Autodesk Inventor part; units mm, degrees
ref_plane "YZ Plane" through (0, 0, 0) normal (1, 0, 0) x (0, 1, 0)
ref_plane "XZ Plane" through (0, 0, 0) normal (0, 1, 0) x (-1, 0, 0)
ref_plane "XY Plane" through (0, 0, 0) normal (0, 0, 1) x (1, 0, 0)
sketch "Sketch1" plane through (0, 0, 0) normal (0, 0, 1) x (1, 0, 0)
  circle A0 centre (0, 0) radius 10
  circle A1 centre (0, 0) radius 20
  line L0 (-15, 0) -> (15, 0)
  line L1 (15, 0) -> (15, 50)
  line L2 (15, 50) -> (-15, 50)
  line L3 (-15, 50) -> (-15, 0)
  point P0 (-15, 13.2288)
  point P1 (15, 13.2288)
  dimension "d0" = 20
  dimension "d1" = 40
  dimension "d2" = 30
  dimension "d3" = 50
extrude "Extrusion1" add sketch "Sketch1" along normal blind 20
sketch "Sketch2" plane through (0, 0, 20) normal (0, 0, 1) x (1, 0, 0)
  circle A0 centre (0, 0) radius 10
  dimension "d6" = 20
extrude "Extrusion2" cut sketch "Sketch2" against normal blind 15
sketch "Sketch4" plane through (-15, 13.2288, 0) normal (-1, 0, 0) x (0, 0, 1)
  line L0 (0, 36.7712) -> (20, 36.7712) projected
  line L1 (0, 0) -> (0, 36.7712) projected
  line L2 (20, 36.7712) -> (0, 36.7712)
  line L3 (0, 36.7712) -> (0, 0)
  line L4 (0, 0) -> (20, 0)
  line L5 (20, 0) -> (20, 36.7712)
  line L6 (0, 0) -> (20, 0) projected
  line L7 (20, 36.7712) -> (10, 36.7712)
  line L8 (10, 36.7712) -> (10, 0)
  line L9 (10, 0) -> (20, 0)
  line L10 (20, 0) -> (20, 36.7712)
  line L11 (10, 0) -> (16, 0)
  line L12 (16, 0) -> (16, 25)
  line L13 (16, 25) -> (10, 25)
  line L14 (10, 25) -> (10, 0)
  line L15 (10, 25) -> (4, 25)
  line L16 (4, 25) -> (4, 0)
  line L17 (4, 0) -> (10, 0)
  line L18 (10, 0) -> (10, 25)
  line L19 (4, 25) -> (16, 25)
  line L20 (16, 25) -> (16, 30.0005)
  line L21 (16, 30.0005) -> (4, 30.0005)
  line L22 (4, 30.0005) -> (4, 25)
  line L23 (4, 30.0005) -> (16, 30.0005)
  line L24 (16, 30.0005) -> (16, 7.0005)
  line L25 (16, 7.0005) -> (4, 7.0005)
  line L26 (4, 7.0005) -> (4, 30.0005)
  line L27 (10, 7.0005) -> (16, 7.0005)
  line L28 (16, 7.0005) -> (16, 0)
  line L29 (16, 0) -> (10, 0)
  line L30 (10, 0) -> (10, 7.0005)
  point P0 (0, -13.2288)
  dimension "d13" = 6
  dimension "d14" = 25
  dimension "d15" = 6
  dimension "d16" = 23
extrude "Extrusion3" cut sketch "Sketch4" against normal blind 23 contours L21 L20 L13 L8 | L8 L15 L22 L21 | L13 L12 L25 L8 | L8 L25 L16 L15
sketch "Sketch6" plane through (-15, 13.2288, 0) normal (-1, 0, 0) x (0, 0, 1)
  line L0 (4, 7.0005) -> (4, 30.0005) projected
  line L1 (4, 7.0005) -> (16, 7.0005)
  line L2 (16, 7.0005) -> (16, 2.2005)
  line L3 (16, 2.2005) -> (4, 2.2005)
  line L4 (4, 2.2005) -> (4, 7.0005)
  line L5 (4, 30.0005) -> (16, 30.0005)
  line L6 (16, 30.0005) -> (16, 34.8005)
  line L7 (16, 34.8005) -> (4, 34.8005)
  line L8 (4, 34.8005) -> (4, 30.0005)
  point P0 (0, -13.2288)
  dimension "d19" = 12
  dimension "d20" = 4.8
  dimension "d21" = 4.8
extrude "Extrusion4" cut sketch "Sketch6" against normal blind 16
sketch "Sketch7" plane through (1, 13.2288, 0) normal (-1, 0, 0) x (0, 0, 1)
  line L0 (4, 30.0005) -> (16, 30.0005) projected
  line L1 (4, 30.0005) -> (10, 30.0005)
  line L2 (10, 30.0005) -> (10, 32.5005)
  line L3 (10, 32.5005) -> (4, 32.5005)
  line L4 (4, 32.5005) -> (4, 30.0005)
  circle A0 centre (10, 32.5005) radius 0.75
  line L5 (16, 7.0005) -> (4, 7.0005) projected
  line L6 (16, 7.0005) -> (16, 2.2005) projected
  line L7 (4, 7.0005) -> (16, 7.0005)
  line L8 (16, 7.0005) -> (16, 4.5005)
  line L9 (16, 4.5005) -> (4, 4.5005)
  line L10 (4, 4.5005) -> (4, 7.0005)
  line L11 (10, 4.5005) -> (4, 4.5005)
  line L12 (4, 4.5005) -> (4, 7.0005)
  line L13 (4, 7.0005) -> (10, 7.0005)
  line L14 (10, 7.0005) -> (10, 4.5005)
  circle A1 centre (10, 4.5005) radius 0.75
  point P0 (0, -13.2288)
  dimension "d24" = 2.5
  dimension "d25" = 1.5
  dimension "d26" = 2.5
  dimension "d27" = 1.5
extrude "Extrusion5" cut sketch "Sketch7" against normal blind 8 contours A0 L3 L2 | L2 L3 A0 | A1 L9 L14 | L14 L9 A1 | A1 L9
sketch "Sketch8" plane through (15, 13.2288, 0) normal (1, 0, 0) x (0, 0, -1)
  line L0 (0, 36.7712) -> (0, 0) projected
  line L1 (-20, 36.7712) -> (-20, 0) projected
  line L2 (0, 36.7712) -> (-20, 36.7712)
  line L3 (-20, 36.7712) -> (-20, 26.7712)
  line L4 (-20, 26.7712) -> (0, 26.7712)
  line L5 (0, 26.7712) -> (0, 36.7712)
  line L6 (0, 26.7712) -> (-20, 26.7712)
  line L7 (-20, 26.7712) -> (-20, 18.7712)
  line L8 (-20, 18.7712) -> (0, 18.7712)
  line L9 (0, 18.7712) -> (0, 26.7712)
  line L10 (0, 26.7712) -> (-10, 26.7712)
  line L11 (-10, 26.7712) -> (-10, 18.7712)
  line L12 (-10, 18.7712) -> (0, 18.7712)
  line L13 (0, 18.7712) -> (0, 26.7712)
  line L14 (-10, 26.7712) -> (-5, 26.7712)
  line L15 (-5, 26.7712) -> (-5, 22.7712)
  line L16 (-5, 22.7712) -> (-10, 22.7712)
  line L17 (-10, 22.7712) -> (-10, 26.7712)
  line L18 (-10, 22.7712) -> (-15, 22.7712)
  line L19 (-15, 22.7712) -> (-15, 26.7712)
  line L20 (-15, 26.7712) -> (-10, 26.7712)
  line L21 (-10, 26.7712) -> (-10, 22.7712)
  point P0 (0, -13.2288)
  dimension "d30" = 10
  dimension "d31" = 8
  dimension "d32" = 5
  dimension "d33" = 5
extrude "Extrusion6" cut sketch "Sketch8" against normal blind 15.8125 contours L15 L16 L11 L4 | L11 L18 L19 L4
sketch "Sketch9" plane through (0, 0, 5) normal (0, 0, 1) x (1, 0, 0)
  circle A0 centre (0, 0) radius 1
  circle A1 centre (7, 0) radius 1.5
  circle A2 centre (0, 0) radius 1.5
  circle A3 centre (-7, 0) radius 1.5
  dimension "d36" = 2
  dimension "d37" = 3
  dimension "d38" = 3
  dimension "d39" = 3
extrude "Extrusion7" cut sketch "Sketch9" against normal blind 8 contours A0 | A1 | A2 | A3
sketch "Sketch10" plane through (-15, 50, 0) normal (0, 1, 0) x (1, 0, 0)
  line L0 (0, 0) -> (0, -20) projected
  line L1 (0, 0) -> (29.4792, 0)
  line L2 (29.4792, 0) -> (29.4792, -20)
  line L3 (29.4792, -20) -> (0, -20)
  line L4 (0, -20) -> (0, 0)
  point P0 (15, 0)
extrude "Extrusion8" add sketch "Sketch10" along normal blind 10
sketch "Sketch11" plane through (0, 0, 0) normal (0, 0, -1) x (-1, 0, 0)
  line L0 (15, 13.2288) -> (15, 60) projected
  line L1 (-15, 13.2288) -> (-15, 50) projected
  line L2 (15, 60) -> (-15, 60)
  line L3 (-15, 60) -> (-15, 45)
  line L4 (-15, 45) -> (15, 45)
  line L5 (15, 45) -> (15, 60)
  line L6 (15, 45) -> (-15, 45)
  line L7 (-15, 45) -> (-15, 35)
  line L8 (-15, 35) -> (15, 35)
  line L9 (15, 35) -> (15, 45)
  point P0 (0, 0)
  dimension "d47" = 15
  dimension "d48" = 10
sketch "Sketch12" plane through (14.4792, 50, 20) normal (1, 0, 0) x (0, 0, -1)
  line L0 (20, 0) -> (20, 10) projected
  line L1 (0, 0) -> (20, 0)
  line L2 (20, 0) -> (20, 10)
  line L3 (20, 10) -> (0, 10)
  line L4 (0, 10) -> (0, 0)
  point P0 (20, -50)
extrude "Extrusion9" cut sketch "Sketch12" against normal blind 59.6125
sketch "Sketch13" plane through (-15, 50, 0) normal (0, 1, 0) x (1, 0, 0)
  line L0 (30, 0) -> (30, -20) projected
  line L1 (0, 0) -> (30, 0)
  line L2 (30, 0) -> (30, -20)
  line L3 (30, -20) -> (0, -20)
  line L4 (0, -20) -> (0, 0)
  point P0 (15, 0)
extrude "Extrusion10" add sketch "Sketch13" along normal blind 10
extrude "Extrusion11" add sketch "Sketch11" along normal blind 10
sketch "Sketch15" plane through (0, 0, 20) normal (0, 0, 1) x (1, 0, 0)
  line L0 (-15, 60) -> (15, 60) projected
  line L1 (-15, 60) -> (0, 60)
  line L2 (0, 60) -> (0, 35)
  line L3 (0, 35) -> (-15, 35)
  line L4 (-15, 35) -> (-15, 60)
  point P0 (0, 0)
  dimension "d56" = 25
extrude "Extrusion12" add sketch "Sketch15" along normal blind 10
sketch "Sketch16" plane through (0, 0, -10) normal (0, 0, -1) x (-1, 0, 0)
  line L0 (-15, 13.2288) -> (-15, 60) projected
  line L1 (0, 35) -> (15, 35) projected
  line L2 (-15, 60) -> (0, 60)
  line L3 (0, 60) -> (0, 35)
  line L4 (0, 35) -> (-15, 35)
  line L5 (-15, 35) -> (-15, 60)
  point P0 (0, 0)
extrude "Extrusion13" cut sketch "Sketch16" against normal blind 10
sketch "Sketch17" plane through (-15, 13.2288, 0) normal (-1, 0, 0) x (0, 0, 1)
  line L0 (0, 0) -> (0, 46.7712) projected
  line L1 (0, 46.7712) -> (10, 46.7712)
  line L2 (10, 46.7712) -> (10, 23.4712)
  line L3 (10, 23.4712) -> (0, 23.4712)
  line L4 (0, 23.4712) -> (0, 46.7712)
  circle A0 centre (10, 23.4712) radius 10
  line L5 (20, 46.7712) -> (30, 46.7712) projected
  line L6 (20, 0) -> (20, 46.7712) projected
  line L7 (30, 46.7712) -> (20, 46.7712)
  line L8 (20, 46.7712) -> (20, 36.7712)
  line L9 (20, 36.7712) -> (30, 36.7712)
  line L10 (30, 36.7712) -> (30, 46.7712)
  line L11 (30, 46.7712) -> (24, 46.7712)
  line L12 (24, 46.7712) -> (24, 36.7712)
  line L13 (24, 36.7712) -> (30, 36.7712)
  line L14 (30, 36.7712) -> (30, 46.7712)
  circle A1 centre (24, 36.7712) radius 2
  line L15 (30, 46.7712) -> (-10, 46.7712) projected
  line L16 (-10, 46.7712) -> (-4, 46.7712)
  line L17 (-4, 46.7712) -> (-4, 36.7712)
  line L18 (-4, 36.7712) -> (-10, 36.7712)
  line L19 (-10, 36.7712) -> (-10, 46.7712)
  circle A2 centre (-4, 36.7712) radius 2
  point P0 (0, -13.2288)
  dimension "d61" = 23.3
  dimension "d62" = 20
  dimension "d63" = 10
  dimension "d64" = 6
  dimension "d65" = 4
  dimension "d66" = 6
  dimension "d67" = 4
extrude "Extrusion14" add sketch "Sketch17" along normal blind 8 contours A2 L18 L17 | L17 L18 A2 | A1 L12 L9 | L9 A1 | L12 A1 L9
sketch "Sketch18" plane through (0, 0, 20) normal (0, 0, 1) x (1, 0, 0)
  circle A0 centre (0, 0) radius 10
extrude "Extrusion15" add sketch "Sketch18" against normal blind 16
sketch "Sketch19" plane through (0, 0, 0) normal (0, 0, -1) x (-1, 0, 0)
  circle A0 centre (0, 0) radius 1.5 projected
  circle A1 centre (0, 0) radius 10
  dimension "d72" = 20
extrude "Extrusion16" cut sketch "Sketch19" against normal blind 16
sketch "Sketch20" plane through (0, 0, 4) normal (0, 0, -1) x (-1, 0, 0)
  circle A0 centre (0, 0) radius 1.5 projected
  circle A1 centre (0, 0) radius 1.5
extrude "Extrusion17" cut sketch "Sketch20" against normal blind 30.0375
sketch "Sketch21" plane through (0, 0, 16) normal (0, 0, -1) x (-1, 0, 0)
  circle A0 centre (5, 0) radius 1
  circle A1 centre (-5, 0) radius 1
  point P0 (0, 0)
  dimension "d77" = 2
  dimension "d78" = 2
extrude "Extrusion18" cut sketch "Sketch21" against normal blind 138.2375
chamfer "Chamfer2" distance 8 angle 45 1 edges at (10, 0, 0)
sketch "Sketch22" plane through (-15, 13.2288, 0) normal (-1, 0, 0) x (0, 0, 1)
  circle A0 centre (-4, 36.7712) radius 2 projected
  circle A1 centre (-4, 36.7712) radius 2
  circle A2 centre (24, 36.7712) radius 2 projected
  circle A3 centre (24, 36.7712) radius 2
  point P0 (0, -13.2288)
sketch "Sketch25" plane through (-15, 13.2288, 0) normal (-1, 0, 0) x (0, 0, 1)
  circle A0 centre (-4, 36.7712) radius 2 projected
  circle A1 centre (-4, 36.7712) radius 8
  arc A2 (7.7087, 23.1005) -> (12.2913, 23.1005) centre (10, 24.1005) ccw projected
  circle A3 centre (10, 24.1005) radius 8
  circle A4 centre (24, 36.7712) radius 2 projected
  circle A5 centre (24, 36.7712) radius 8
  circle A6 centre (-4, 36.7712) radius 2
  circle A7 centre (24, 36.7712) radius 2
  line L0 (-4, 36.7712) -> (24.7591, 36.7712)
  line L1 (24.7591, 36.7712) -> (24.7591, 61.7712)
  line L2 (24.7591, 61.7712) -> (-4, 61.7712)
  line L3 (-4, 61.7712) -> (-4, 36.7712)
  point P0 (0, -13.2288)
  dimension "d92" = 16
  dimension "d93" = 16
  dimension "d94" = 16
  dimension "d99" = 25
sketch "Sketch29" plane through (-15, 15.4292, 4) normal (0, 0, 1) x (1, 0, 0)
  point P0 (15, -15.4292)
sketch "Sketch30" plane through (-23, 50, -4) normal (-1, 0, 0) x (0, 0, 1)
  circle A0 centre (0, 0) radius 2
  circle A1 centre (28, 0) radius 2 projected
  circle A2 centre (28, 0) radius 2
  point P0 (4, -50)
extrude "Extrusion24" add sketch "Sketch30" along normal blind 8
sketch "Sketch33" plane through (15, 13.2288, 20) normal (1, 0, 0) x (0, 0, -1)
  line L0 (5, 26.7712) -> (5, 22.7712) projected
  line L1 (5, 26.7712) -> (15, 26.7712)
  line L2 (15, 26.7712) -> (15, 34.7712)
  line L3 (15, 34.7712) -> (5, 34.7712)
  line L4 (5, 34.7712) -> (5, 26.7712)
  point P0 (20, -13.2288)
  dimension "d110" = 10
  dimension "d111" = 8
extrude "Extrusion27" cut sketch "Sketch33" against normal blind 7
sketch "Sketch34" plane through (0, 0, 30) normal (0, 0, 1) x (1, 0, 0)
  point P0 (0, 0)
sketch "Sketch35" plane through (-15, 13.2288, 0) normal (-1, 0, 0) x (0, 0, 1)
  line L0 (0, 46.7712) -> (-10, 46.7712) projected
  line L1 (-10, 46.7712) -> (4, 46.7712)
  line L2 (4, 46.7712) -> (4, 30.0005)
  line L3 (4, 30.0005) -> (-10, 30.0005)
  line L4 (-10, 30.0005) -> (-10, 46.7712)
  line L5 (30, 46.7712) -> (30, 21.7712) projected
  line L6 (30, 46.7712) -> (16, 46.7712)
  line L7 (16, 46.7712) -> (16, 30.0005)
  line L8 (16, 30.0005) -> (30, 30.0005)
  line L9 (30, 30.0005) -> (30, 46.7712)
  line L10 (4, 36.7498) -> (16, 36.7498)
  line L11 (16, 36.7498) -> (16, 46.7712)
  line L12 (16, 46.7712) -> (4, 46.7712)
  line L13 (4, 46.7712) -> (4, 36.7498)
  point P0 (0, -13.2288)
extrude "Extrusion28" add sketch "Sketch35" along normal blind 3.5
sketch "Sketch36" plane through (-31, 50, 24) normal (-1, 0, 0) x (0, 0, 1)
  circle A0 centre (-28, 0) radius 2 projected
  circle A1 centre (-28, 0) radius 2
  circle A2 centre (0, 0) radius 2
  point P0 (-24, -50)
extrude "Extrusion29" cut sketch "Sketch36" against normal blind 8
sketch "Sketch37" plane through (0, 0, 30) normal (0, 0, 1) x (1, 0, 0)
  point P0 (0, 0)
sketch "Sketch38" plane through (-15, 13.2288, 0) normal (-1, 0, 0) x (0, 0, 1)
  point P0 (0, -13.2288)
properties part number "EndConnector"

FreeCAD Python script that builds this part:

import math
import FreeCAD as App
import Part
import Sketcher
Q = App.Units.Quantity


def edges_at(feature, points):
    """Names of the edges that pass closest to the given points."""
    edges = feature.Shape.Edges
    near = lambda p: min(range(len(edges)), key=lambda i: edges[i].distToShape(Part.Vertex(*p))[0])
    return sorted({f"Edge{near(p) + 1}" for p in points})

doc = App.newDocument("Part")
params = doc.addObject("Spreadsheet::Sheet", "Params")
for row, (alias, value) in enumerate([
    ("sketch1_radius", "20 mm"),
    ("sketch1_width", "30 mm"),
    ("pad1_length", "20 mm"),
    ("sketch2_diameter", "20 mm"),
    ("pocket1_length", "15 mm"),
    ("sketch3_width", "23 mm"),
    ("sketch3_height", "12 mm"),
    ("pocket2_length", "23 mm"),
    ("sketch4_height", "12 mm"),
    ("sketch4_width", "4.8 mm"),
    ("pocket3_length", "16 mm"),
    ("sketch5_diameter", "1.5 mm"),
    ("pocket4_length", "8 mm"),
    ("sketch6_height", "10 mm"),
    ("sketch6_width", "4 mm"),
    ("pocket5_length", "15.8125 mm"),
    ("sketch7_diameter", "3 mm"),
    ("pocket6_length", "8 mm"),
    ("sketch8_height", "20 mm"),
    ("pad2_length", "10 mm"),
    ("sketch9_width", "10 mm"),
    ("sketch9_height", "20 mm"),
    ("pocket7_length", "59.6125 mm"),
    ("sketch10_width", "30 mm"),
    ("sketch10_height", "20 mm"),
    ("pad3_length", "10 mm"),
    ("sketch11_height", "25 mm"),
    ("pad4_length", "10 mm"),
    ("sketch12_height", "25 mm"),
    ("sketch12_width", "15 mm"),
    ("pad5_length", "10 mm"),
    ("sketch13_width", "15 mm"),
    ("sketch13_height", "25 mm"),
    ("pocket8_length", "10 mm"),
    ("sketch14_diameter", "4 mm"),
    ("pad6_length", "8 mm"),
    ("sketch15_diameter", "20 mm"),
    ("pad7_length", "16 mm"),
    ("sketch16_diameter", "20 mm"),
    ("sketch16_diameter2", "3 mm"),
    ("pocket9_length", "16 mm"),
    ("sketch17_diameter", "3 mm"),
    ("pocket10_length", "30.0375 mm"),
    ("sketch18_diameter", "2 mm"),
    ("pocket11_length", "138.2375 mm"),
    ("chamfer_size", "8 mm"),
    ("sketch19_diameter", "4 mm"),
    ("pad8_length", "8 mm"),
    ("sketch20_width", "8 mm"),
    ("sketch20_height", "10 mm"),
    ("pocket12_length", "7 mm"),
    ("sketch21_height", "14 mm"),
    ("sketch21_height2", "12 mm"),
    ("pad9_length", "3.5 mm"),
    ("sketch22_diameter", "4 mm"),
    ("pocket13_length", "8 mm"),
], start=1):
    params.set(f"A{row}", alias)
    params.set(f"B{row}", "=" + value)
    params.setAlias(f"B{row}", alias)

body = doc.addObject("PartDesign::Body", "Body")

# Sketch on XY plane
sketch1 = body.newObject("Sketcher::SketchObject", "Sketch")
sketch1.AttachmentSupport = (doc.getObject("XY_Plane"), [""])
sketch1.MapMode = "FlatFace"
sketch1.addGeometry(Part.ArcOfCircle(Part.Circle(App.Vector(0, 0, 0), App.Vector(0, 0, 1), 20), math.radians(139), math.radians(401)), False)
sketch1.addGeometry(Part.LineSegment(App.Vector(15, 13, 0), App.Vector(15, 50, 0)), False)
sketch1.addGeometry(Part.LineSegment(App.Vector(15, 50, 0), App.Vector(-15, 50, 0)), False)
sketch1.addGeometry(Part.LineSegment(App.Vector(-15, 50, 0), App.Vector(-15, 13, 0)), False)
sketch1.addConstraint(Sketcher.Constraint("Coincident", 0, 2, 1, 1))
sketch1.addConstraint(Sketcher.Constraint("Coincident", 1, 2, 2, 1))
sketch1.addConstraint(Sketcher.Constraint("Coincident", 2, 2, 3, 1))
sketch1.addConstraint(Sketcher.Constraint("Coincident", 3, 2, 0, 1))
sketch1.addConstraint(Sketcher.Constraint("Vertical", 1))
sketch1.addConstraint(Sketcher.Constraint("Horizontal", 2))
sketch1.addConstraint(Sketcher.Constraint("Vertical", 3))
sketch1.addConstraint(Sketcher.Constraint("Coincident", 0, 3, -1, 1))
sketch1.addConstraint(Sketcher.Constraint("Horizontal", 0, 2, 3, 2))
sketch1.addConstraint(Sketcher.Constraint("Radius", 0, Q("20 mm")))
sketch1.addConstraint(Sketcher.Constraint("DistanceX", 2, 2, 2, 1, Q("30 mm")))
sketch1.addConstraint(Sketcher.Constraint("DistanceY", -1, 1, 1, 2, Q("50 mm")))
sketch1.setExpression("Constraints[9]", "Params.sketch1_radius")
sketch1.setExpression("Constraints[10]", "Params.sketch1_width")
pad1 = body.newObject("PartDesign::Pad", "Pad")
pad1.Profile = sketch1
pad1.setExpression("Length", "Params.pad1_length")

# Sketch on XY plane
sketch2 = body.newObject("Sketcher::SketchObject", "Sketch001")
sketch2.AttachmentSupport = (doc.getObject("XY_Plane"), [""])
sketch2.MapMode = "FlatFace"
sketch2.AttachmentOffset = App.Placement(App.Vector(0, 0, 20), App.Rotation())
sketch2.addGeometry(Part.Circle(App.Vector(0, 0, 0), App.Vector(0, 0, 1), 10), False)
sketch2.addConstraint(Sketcher.Constraint("Coincident", 0, 3, -1, 1))
sketch2.addConstraint(Sketcher.Constraint("Diameter", 0, Q("20 mm")))
sketch2.setExpression("Constraints[1]", "Params.sketch2_diameter")
pocket1 = body.newObject("PartDesign::Pocket", "Pocket")
pocket1.Profile = sketch2
pocket1.setExpression("Length", "Params.pocket1_length")

# Sketch on YZ plane
sketch3 = body.newObject("Sketcher::SketchObject", "Sketch002")
sketch3.AttachmentSupport = (doc.getObject("YZ_Plane"), [""])
sketch3.MapMode = "FlatFace"
sketch3.AttachmentOffset = App.Placement(App.Vector(0, 0, -15), App.Rotation())
sketch3.addGeometry(Part.LineSegment(App.Vector(43, 16, 0), App.Vector(43, 4, 0)), False)
sketch3.addGeometry(Part.LineSegment(App.Vector(43, 4, 0), App.Vector(20, 4, 0)), False)
sketch3.addGeometry(Part.LineSegment(App.Vector(20, 4, 0), App.Vector(20, 16, 0)), False)
sketch3.addGeometry(Part.LineSegment(App.Vector(20, 16, 0), App.Vector(43, 16, 0)), False)
sketch3.addConstraint(Sketcher.Constraint("Coincident", 0, 2, 1, 1))
sketch3.addConstraint(Sketcher.Constraint("Coincident", 1, 2, 2, 1))
sketch3.addConstraint(Sketcher.Constraint("Coincident", 2, 2, 3, 1))
sketch3.addConstraint(Sketcher.Constraint("Coincident", 3, 2, 0, 1))
sketch3.addConstraint(Sketcher.Constraint("Vertical", 0))
sketch3.addConstraint(Sketcher.Constraint("Horizontal", 1))
sketch3.addConstraint(Sketcher.Constraint("Vertical", 2))
sketch3.addConstraint(Sketcher.Constraint("Horizontal", 3))
sketch3.addConstraint(Sketcher.Constraint("DistanceX", 1, 2, 1, 1, Q("23 mm")))
sketch3.addConstraint(Sketcher.Constraint("DistanceY", 0, 2, 0, 1, Q("12 mm")))
sketch3.addConstraint(Sketcher.Constraint("DistanceY", -1, 1, 0, 2, Q("4 mm")))
sketch3.addConstraint(Sketcher.Constraint("DistanceX", -1, 1, 0, 2, Q("43.2293 mm")))
sketch3.setExpression("Constraints[8]", "Params.sketch3_width")
sketch3.setExpression("Constraints[9]", "Params.sketch3_height")
pocket2 = body.newObject("PartDesign::Pocket", "Pocket001")
pocket2.Profile = sketch3
pocket2.setExpression("Length", "Params.pocket2_length")
pocket2.Reversed = True

# Sketch on YZ plane
sketch4 = body.newObject("Sketcher::SketchObject", "Sketch003")
sketch4.AttachmentSupport = (doc.getObject("YZ_Plane"), [""])
sketch4.MapMode = "FlatFace"
sketch4.AttachmentOffset = App.Placement(App.Vector(0, 0, -15), App.Rotation())
sketch4.addGeometry(Part.LineSegment(App.Vector(48, 4, 0), App.Vector(43.2, 4, 0)), False)
sketch4.addGeometry(Part.LineSegment(App.Vector(43.2, 4, 0), App.Vector(43.2, 16, 0)), False)
sketch4.addGeometry(Part.LineSegment(App.Vector(43.2, 16, 0), App.Vector(48, 16, 0)), False)
sketch4.addGeometry(Part.LineSegment(App.Vector(48, 16, 0), App.Vector(48, 4, 0)), False)
sketch4.addGeometry(Part.LineSegment(App.Vector(20.2, 16, 0), App.Vector(20.2, 4, 0)), False)
sketch4.addGeometry(Part.LineSegment(App.Vector(20.2, 4, 0), App.Vector(15.4, 4, 0)), False)
sketch4.addGeometry(Part.LineSegment(App.Vector(15.4, 4, 0), App.Vector(15.4, 16, 0)), False)
sketch4.addGeometry(Part.LineSegment(App.Vector(15.4, 16, 0), App.Vector(20.2, 16, 0)), False)
sketch4.addConstraint(Sketcher.Constraint("Coincident", 0, 2, 1, 1))
sketch4.addConstraint(Sketcher.Constraint("Coincident", 1, 2, 2, 1))
sketch4.addConstraint(Sketcher.Constraint("Coincident", 2, 2, 3, 1))
sketch4.addConstraint(Sketcher.Constraint("Coincident", 3, 2, 0, 1))
sketch4.addConstraint(Sketcher.Constraint("Coincident", 4, 2, 5, 1))
sketch4.addConstraint(Sketcher.Constraint("Coincident", 5, 2, 6, 1))
sketch4.addConstraint(Sketcher.Constraint("Coincident", 6, 2, 7, 1))
sketch4.addConstraint(Sketcher.Constraint("Coincident", 7, 2, 4, 1))
sketch4.addConstraint(Sketcher.Constraint("Horizontal", 0))
sketch4.addConstraint(Sketcher.Constraint("Vertical", 1))
sketch4.addConstraint(Sketcher.Constraint("Horizontal", 2))
sketch4.addConstraint(Sketcher.Constraint("Vertical", 3))
sketch4.addConstraint(Sketcher.Constraint("Vertical", 4))
sketch4.addConstraint(Sketcher.Constraint("Horizontal", 5))
sketch4.addConstraint(Sketcher.Constraint("Vertical", 6))
sketch4.addConstraint(Sketcher.Constraint("Horizontal", 7))
sketch4.addConstraint(Sketcher.Constraint("Horizontal", 3, 2, 4, 2))
sketch4.addConstraint(Sketcher.Constraint("Horizontal", 2, 2, 6, 2))
sketch4.addConstraint(Sketcher.Constraint("Equal", 2, 5))
sketch4.addConstraint(Sketcher.Constraint("DistanceY", 1, 1, 1, 2, Q("12 mm")))
sketch4.addConstraint(Sketcher.Constraint("DistanceX", 0, 2, 0, 1, Q("4.8 mm")))
sketch4.addConstraint(Sketcher.Constraint("DistanceY", -1, 1, 0, 2, Q("4 mm")))
sketch4.addConstraint(Sketcher.Constraint("DistanceX", 4, 2, 0, 2, Q("23 mm")))
sketch4.addConstraint(Sketcher.Constraint("DistanceX", -1, 1, 0, 2, Q("43.2293 mm")))
sketch4.setExpression("Constraints[19]", "Params.sketch4_height")
sketch4.setExpression("Constraints[20]", "Params.sketch4_width")
pocket3 = body.newObject("PartDesign::Pocket", "Pocket002")
pocket3.Profile = sketch4
pocket3.setExpression("Length", "Params.pocket3_length")
pocket3.Reversed = True

# Sketch on YZ plane
sketch5 = body.newObject("Sketcher::SketchObject", "Sketch004")
sketch5.AttachmentSupport = (doc.getObject("YZ_Plane"), [""])
sketch5.MapMode = "FlatFace"
sketch5.AttachmentOffset = App.Placement(App.Vector(0, 0, 1), App.Rotation())
sketch5.addGeometry(Part.Circle(App.Vector(45.7, 10, 0), App.Vector(0, 0, 1), 0.8), False)
sketch5.addGeometry(Part.Circle(App.Vector(17.7, 10, 0), App.Vector(0, 0, 1), 0.8), False)
sketch5.addConstraint(Sketcher.Constraint("Equal", 0, 1))
sketch5.addConstraint(Sketcher.Constraint("Horizontal", 0, 3, 1, 3))
sketch5.addConstraint(Sketcher.Constraint("Diameter", 0, Q("1.5 mm")))
sketch5.addConstraint(Sketcher.Constraint("DistanceY", -1, 1, 0, 3, Q("10 mm")))
sketch5.addConstraint(Sketcher.Constraint("DistanceX", 1, 3, 0, 3, Q("28 mm")))
sketch5.addConstraint(Sketcher.Constraint("DistanceX", -1, 1, 0, 3, Q("45.7293 mm")))
sketch5.setExpression("Constraints[2]", "Params.sketch5_diameter")
pocket4 = body.newObject("PartDesign::Pocket", "Pocket003")
pocket4.Profile = sketch5
pocket4.setExpression("Length", "Params.pocket4_length")
pocket4.Reversed = True

# Sketch on YZ plane
sketch6 = body.newObject("Sketcher::SketchObject", "Sketch005")
sketch6.AttachmentSupport = (doc.getObject("YZ_Plane"), [""])
sketch6.MapMode = "FlatFace"
sketch6.AttachmentOffset = App.Placement(App.Vector(0, 0, 15), App.Rotation())
sketch6.addGeometry(Part.LineSegment(App.Vector(36, 5, 0), App.Vector(40, 5, 0)), False)
sketch6.addGeometry(Part.LineSegment(App.Vector(40, 5, 0), App.Vector(40, 15, 0)), False)
sketch6.addGeometry(Part.LineSegment(App.Vector(40, 15, 0), App.Vector(36, 15, 0)), False)
sketch6.addGeometry(Part.LineSegment(App.Vector(36, 15, 0), App.Vector(36, 5, 0)), False)
sketch6.addConstraint(Sketcher.Constraint("Coincident", 0, 2, 1, 1))
sketch6.addConstraint(Sketcher.Constraint("Coincident", 1, 2, 2, 1))
sketch6.addConstraint(Sketcher.Constraint("Coincident", 2, 2, 3, 1))
sketch6.addConstraint(Sketcher.Constraint("Coincident", 3, 2, 0, 1))
sketch6.addConstraint(Sketcher.Constraint("Horizontal", 0))
sketch6.addConstraint(Sketcher.Constraint("Vertical", 1))
sketch6.addConstraint(Sketcher.Constraint("Horizontal", 2))
sketch6.addConstraint(Sketcher.Constraint("Vertical", 3))
sketch6.addConstraint(Sketcher.Constraint("DistanceY", 1, 1, 1, 2, Q("10 mm")))
sketch6.addConstraint(Sketcher.Constraint("DistanceY", -1, 1, 0, 2, Q("5 mm")))
sketch6.addConstraint(Sketcher.Constraint("DistanceX", 0, 1, 0, 2, Q("4 mm")))
sketch6.addConstraint(Sketcher.Constraint("DistanceX", -1, 1, 0, 2, Q("40 mm")))
sketch6.setExpression("Constraints[8]", "Params.sketch6_height")
sketch6.setExpression("Constraints[10]", "Params.sketch6_width")
pocket5 = body.newObject("PartDesign::Pocket", "Pocket004")
pocket5.Profile = sketch6
pocket5.setExpression("Length", "Params.pocket5_length")

# Sketch on XY plane
sketch7 = body.newObject("Sketcher::SketchObject", "Sketch006")
sketch7.AttachmentSupport = (doc.getObject("XY_Plane"), [""])
sketch7.MapMode = "FlatFace"
sketch7.AttachmentOffset = App.Placement(App.Vector(0, 0, 5), App.Rotation())
sketch7.addGeometry(Part.Circle(App.Vector(0, 0, 0), App.Vector(0, 0, 1), 1.5), False)
sketch7.addGeometry(Part.Circle(App.Vector(7, 0, 0), App.Vector(0, 0, 1), 1.5), False)
sketch7.addGeometry(Part.Circle(App.Vector(-7, 0, 0), App.Vector(0, 0, 1), 1.5), False)
sketch7.addConstraint(Sketcher.Constraint("Coincident", 0, 3, -1, 1))
sketch7.addConstraint(Sketcher.Constraint("Equal", 0, 1))
sketch7.addConstraint(Sketcher.Constraint("Equal", 1, 2))
sketch7.addConstraint(Sketcher.Constraint("Symmetric", 1, 3, 2, 3, -1, 1))
sketch7.addConstraint(Sketcher.Constraint("PointOnObject", 1, 3, -1))
sketch7.addConstraint(Sketcher.Constraint("Diameter", 0, Q("3 mm")))
sketch7.addConstraint(Sketcher.Constraint("DistanceX", -1, 1, 1, 3, Q("7 mm")))
sketch7.setExpression("Constraints[5]", "Params.sketch7_diameter")
pocket6 = body.newObject("PartDesign::Pocket", "Pocket005")
pocket6.Profile = sketch7
pocket6.setExpression("Length", "Params.pocket6_length")

# Sketch on XZ plane
sketch8 = body.newObject("Sketcher::SketchObject", "Sketch007")
sketch8.AttachmentSupport = (doc.getObject("XZ_Plane"), [""])
sketch8.MapMode = "FlatFace"
sketch8.AttachmentOffset = App.Placement(App.Vector(0, 0, -50), App.Rotation())
sketch8.addGeometry(Part.LineSegment(App.Vector(14, 0, 0), App.Vector(-15, 0, 0)), False)
sketch8.addGeometry(Part.LineSegment(App.Vector(-15, 0, 0), App.Vector(-15, 20, 0)), False)
sketch8.addGeometry(Part.LineSegment(App.Vector(-15, 20, 0), App.Vector(14, 20, 0)), False)
sketch8.addGeometry(Part.LineSegment(App.Vector(14, 20, 0), App.Vector(14, 0, 0)), False)
sketch8.addConstraint(Sketcher.Constraint("Coincident", 0, 2, 1, 1))
sketch8.addConstraint(Sketcher.Constraint("Coincident", 1, 2, 2, 1))
sketch8.addConstraint(Sketcher.Constraint("Coincident", 2, 2, 3, 1))
sketch8.addConstraint(Sketcher.Constraint("Coincident", 3, 2, 0, 1))
sketch8.addConstraint(Sketcher.Constraint("Horizontal", 0))
sketch8.addConstraint(Sketcher.Constraint("Vertical", 1))
sketch8.addConstraint(Sketcher.Constraint("Horizontal", 2))
sketch8.addConstraint(Sketcher.Constraint("Vertical", 3))
sketch8.addConstraint(Sketcher.Constraint("PointOnObject", 0, 2, -1))
sketch8.addConstraint(Sketcher.Constraint("DistanceY", 1, 1, 1, 2, Q("20 mm")))
sketch8.addConstraint(Sketcher.Constraint("DistanceX", 0, 2, -1, 1, Q("15 mm")))
sketch8.addConstraint(Sketcher.Constraint("DistanceX", 0, 2, 0, 1, Q("29.4792 mm")))
sketch8.setExpression("Constraints[9]", "Params.sketch8_height")
pad2 = body.newObject("PartDesign::Pad", "Pad001")
pad2.Profile = sketch8
pad2.setExpression("Length", "Params.pad2_length")
pad2.Reversed = True

# Sketch on YZ plane
sketch9 = body.newObject("Sketcher::SketchObject", "Sketch008")
sketch9.AttachmentSupport = (doc.getObject("YZ_Plane"), [""])
sketch9.MapMode = "FlatFace"
sketch9.AttachmentOffset = App.Placement(App.Vector(0, 0, 14.4792), App.Rotation())
sketch9.addGeometry(Part.LineSegment(App.Vector(50, 20, 0), App.Vector(50, 0, 0)), False)
sketch9.addGeometry(Part.LineSegment(App.Vector(50, 0, 0), App.Vector(60, 0, 0)), False)
sketch9.addGeometry(Part.LineSegment(App.Vector(60, 0, 0), App.Vector(60, 20, 0)), False)
sketch9.addGeometry(Part.LineSegment(App.Vector(60, 20, 0), App.Vector(50, 20, 0)), False)
sketch9.addConstraint(Sketcher.Constraint("Coincident", 0, 2, 1, 1))
sketch9.addConstraint(Sketcher.Constraint("Coincident", 1, 2, 2, 1))
sketch9.addConstraint(Sketcher.Constraint("Coincident", 2, 2, 3, 1))
sketch9.addConstraint(Sketcher.Constraint("Coincident", 3, 2, 0, 1))
sketch9.addConstraint(Sketcher.Constraint("Vertical", 0))
sketch9.addConstraint(Sketcher.Constraint("Horizontal", 1))
sketch9.addConstraint(Sketcher.Constraint("Vertical", 2))
sketch9.addConstraint(Sketcher.Constraint("Horizontal", 3))
sketch9.addConstraint(Sketcher.Constraint("PointOnObject", 0, 2, -1))
sketch9.addConstraint(Sketcher.Constraint("DistanceX", 1, 1, 1, 2, Q("10 mm")))
sketch9.addConstraint(Sketcher.Constraint("DistanceY", 0, 2, 0, 1, Q("20 mm")))
sketch9.addConstraint(Sketcher.Constraint("DistanceX", -1, 1, 0, 2, Q("50 mm")))
sketch9.setExpression("Constraints[9]", "Params.sketch9_width")
sketch9.setExpression("Constraints[10]", "Params.sketch9_height")
pocket7 = body.newObject("PartDesign::Pocket", "Pocket006")
pocket7.Profile = sketch9
pocket7.setExpression("Length", "Params.pocket7_length")

# Sketch on XZ plane
sketch10 = body.newObject("Sketcher::SketchObject", "Sketch009")
sketch10.AttachmentSupport = (doc.getObject("XZ_Plane"), [""])
sketch10.MapMode = "FlatFace"
sketch10.AttachmentOffset = App.Placement(App.Vector(0, 0, -50), App.Rotation())
sketch10.addGeometry(Part.LineSegment(App.Vector(15, 20, 0), App.Vector(15, 0, 0)), False)
sketch10.addGeometry(Part.LineSegment(App.Vector(15, 0, 0), App.Vector(-15, 0, 0)), False)
sketch10.addGeometry(Part.LineSegment(App.Vector(-15, 0, 0), App.Vector(-15, 20, 0)), False)
sketch10.addGeometry(Part.LineSegment(App.Vector(-15, 20, 0), App.Vector(15, 20, 0)), False)
sketch10.addConstraint(Sketcher.Constraint("Coincident", 0, 2, 1, 1))
sketch10.addConstraint(Sketcher.Constraint("Coincident", 1, 2, 2, 1))
sketch10.addConstraint(Sketcher.Constraint("Coincident", 2, 2, 3, 1))
sketch10.addConstraint(Sketcher.Constraint("Coincident", 3, 2, 0, 1))
sketch10.addConstraint(Sketcher.Constraint("Vertical", 0))
sketch10.addConstraint(Sketcher.Constraint("Horizontal", 1))
sketch10.addConstraint(Sketcher.Constraint("Vertical", 2))
sketch10.addConstraint(Sketcher.Constraint("Horizontal", 3))
sketch10.addConstraint(Sketcher.Constraint("Symmetric", 0, 2, 1, 2, -1, 1))
sketch10.addConstraint(Sketcher.Constraint("DistanceX", 1, 2, 1, 1, Q("30 mm")))
sketch10.addConstraint(Sketcher.Constraint("DistanceY", 0, 2, 0, 1, Q("20 mm")))
sketch10.setExpression("Constraints[9]", "Params.sketch10_width")
sketch10.setExpression("Constraints[10]", "Params.sketch10_height")
pad3 = body.newObject("PartDesign::Pad", "Pad002")
pad3.Profile = sketch10
pad3.setExpression("Length", "Params.pad3_length")
pad3.Reversed = True

# Sketch on XY plane
sketch11 = body.newObject("Sketcher::SketchObject", "Sketch010")
sketch11.AttachmentSupport = (doc.getObject("XY_Plane"), [""])
sketch11.MapMode = "FlatFace"
sketch11.addGeometry(Part.LineSegment(App.Vector(15, 35, 0), App.Vector(-15, 35, 0)), False)
sketch11.addGeometry(Part.LineSegment(App.Vector(-15, 35, 0), App.Vector(-15, 60, 0)), False)
sketch11.addGeometry(Part.LineSegment(App.Vector(-15, 60, 0), App.Vector(15, 60, 0)), False)
sketch11.addGeometry(Part.LineSegment(App.Vector(15, 60, 0), App.Vector(15, 35, 0)), False)
sketch11.addConstraint(Sketcher.Constraint("Coincident", 0, 2, 1, 1))
sketch11.addConstraint(Sketcher.Constraint("Coincident", 1, 2, 2, 1))
sketch11.addConstraint(Sketcher.Constraint("Coincident", 2, 2, 3, 1))
sketch11.addConstraint(Sketcher.Constraint("Coincident", 3, 2, 0, 1))
sketch11.addConstraint(Sketcher.Constraint("Horizontal", 0))
sketch11.addConstraint(Sketcher.Constraint("Vertical", 1))
sketch11.addConstraint(Sketcher.Constraint("Horizontal", 2))
sketch11.addConstraint(Sketcher.Constraint("Vertical", 3))
sketch11.addConstraint(Sketcher.Constraint("DistanceX", 0, 2, -1, 1, Q("15 mm")))
sketch11.addConstraint(Sketcher.Constraint("DistanceX", -1, 1, 2, 2, Q("15 mm")))
sketch11.addConstraint(Sketcher.Constraint("DistanceY", 1, 1, 1, 2, Q("25 mm")))
sketch11.addConstraint(Sketcher.Constraint("DistanceY", -1, 1, 0, 2, Q("35 mm")))
sketch11.setExpression("Constraints[10]", "Params.sketch11_height")
pad4 = body.newObject("PartDesign::Pad", "Pad003")
pad4.Profile = sketch11
pad4.setExpression("Length", "Params.pad4_length")
pad4.Reversed = True

# Sketch on XY plane
sketch12 = body.newObject("Sketcher::SketchObject", "Sketch011")
sketch12.AttachmentSupport = (doc.getObject("XY_Plane"), [""])
sketch12.MapMode = "FlatFace"
sketch12.AttachmentOffset = App.Placement(App.Vector(0, 0, 20), App.Rotation())
sketch12.addGeometry(Part.LineSegment(App.Vector(0, 60, 0), App.Vector(-15, 60, 0)), False)
sketch12.addGeometry(Part.LineSegment(App.Vector(-15, 60, 0), App.Vector(-15, 35, 0)), False)
sketch12.addGeometry(Part.LineSegment(App.Vector(-15, 35, 0), App.Vector(0, 35, 0)), False)
sketch12.addGeometry(Part.LineSegment(App.Vector(0, 35, 0), App.Vector(0, 60, 0)), False)
sketch12.addConstraint(Sketcher.Constraint("Coincident", 0, 2, 1, 1))
sketch12.addConstraint(Sketcher.Constraint("Coincident", 1, 2, 2, 1))
sketch12.addConstraint(Sketcher.Constraint("Coincident", 2, 2, 3, 1))
sketch12.addConstraint(Sketcher.Constraint("Coincident", 3, 2, 0, 1))
sketch12.addConstraint(Sketcher.Constraint("Horizontal", 0))
sketch12.addConstraint(Sketcher.Constraint("Vertical", 1))
sketch12.addConstraint(Sketcher.Constraint("Horizontal", 2))
sketch12.addConstraint(Sketcher.Constraint("Vertical", 3))
sketch12.addConstraint(Sketcher.Constraint("PointOnObject", 2, 2, -2))
sketch12.addConstraint(Sketcher.Constraint("DistanceY", 1, 2, 1, 1, Q("25 mm")))
sketch12.addConstraint(Sketcher.Constraint("DistanceX", 0, 2, 0, 1, Q("15 mm")))
sketch12.addConstraint(Sketcher.Constraint("DistanceY", -1, 1, 0, 2, Q("60 mm")))
sketch12.setExpression("Constraints[9]", "Params.sketch12_height")
sketch12.setExpression("Constraints[10]", "Params.sketch12_width")
pad5 = body.newObject("PartDesign::Pad", "Pad004")
pad5.Profile = sketch12
pad5.setExpression("Length", "Params.pad5_length")

# Sketch on XY plane
sketch13 = body.newObject("Sketcher::SketchObject", "Sketch012")
sketch13.AttachmentSupport = (doc.getObject("XY_Plane"), [""])
sketch13.MapMode = "FlatFace"
sketch13.AttachmentOffset = App.Placement(App.Vector(0, 0, -10), App.Rotation())
sketch13.addGeometry(Part.LineSegment(App.Vector(15, 60, 0), App.Vector(15, 35, 0)), False)
sketch13.addGeometry(Part.LineSegment(App.Vector(15, 35, 0), App.Vector(0, 35, 0)), False)
sketch13.addGeometry(Part.LineSegment(App.Vector(0, 35, 0), App.Vector(0, 60, 0)), False)
sketch13.addGeometry(Part.LineSegment(App.Vector(0, 60, 0), App.Vector(15, 60, 0)), False)
sketch13.addConstraint(Sketcher.Constraint("Coincident", 0, 2, 1, 1))
sketch13.addConstraint(Sketcher.Constraint("Coincident", 1, 2, 2, 1))
sketch13.addConstraint(Sketcher.Constraint("Coincident", 2, 2, 3, 1))
sketch13.addConstraint(Sketcher.Constraint("Coincident", 3, 2, 0, 1))
sketch13.addConstraint(Sketcher.Constraint("Vertical", 0))
sketch13.addConstraint(Sketcher.Constraint("Horizontal", 1))
sketch13.addConstraint(Sketcher.Constraint("Vertical", 2))
sketch13.addConstraint(Sketcher.Constraint("Horizontal", 3))
sketch13.addConstraint(Sketcher.Constraint("PointOnObject", 1, 2, -2))
sketch13.addConstraint(Sketcher.Constraint("DistanceX", 1, 2, 1, 1, Q("15 mm")))
sketch13.addConstraint(Sketcher.Constraint("DistanceY", 0, 2, 0, 1, Q("25 mm")))
sketch13.addConstraint(Sketcher.Constraint("DistanceY", -1, 1, 0, 2, Q("35 mm")))
sketch13.setExpression("Constraints[9]", "Params.sketch13_width")
sketch13.setExpression("Constraints[10]", "Params.sketch13_height")
pocket8 = body.newObject("PartDesign::Pocket", "Pocket007")
pocket8.Profile = sketch13
pocket8.setExpression("Length", "Params.pocket8_length")
pocket8.Reversed = True

# Sketch on YZ plane
sketch14 = body.newObject("Sketcher::SketchObject", "Sketch013")
sketch14.AttachmentSupport = (doc.getObject("YZ_Plane"), [""])
sketch14.MapMode = "FlatFace"
sketch14.AttachmentOffset = App.Placement(App.Vector(0, 0, -15), App.Rotation())
sketch14.addGeometry(Part.Circle(App.Vector(50, -4, 0), App.Vector(0, 0, 1), 2), False)
sketch14.addGeometry(Part.Circle(App.Vector(50, 24, 0), App.Vector(0, 0, 1), 2), False)
sketch14.addConstraint(Sketcher.Constraint("Equal", 0, 1))
sketch14.addConstraint(Sketcher.Constraint("Vertical", 0, 3, 1, 3))
sketch14.addConstraint(Sketcher.Constraint("Diameter", 0, Q("4 mm")))
sketch14.addConstraint(Sketcher.Constraint("DistanceY", 0, 3, -1, 1, Q("4 mm")))
sketch14.addConstraint(Sketcher.Constraint("DistanceX", -1, 1, 0, 3, Q("50 mm")))
sketch14.addConstraint(Sketcher.Constraint("DistanceY", -1, 1, 1, 3, Q("24 mm")))
sketch14.setExpression("Constraints[2]", "Params.sketch14_diameter")
pad6 = body.newObject("PartDesign::Pad", "Pad005")
pad6.Profile = sketch14
pad6.setExpression("Length", "Params.pad6_length")
pad6.Reversed = True

# Sketch on XY plane
sketch15 = body.newObject("Sketcher::SketchObject", "Sketch014")
sketch15.AttachmentSupport = (doc.getObject("XY_Plane"), [""])
sketch15.MapMode = "FlatFace"
sketch15.AttachmentOffset = App.Placement(App.Vector(0, 0, 20), App.Rotation())
sketch15.addGeometry(Part.Circle(App.Vector(0, 0, 0), App.Vector(0, 0, 1), 10), False)
sketch15.addConstraint(Sketcher.Constraint("Coincident", 0, 3, -1, 1))
sketch15.addConstraint(Sketcher.Constraint("Diameter", 0, Q("20 mm")))
sketch15.setExpression("Constraints[1]", "Params.sketch15_diameter")
pad7 = body.newObject("PartDesign::Pad", "Pad006")
pad7.Profile = sketch15
pad7.setExpression("Length", "Params.pad7_length")
pad7.Reversed = True

# Sketch on XY plane
sketch16 = body.newObject("Sketcher::SketchObject", "Sketch015")
sketch16.AttachmentSupport = (doc.getObject("XY_Plane"), [""])
sketch16.MapMode = "FlatFace"
sketch16.addGeometry(Part.Circle(App.Vector(0, 0, 0), App.Vector(0, 0, 1), 10), False)
sketch16.addGeometry(Part.Circle(App.Vector(0, 0, 0), App.Vector(0, 0, 1), 1.5), False)
sketch16.addConstraint(Sketcher.Constraint("Coincident", 0, 3, -1, 1))
sketch16.addConstraint(Sketcher.Constraint("Coincident", 1, 3, -1, 1))
sketch16.addConstraint(Sketcher.Constraint("Diameter", 0, Q("20 mm")))
sketch16.addConstraint(Sketcher.Constraint("Diameter", 1, Q("3 mm")))
sketch16.setExpression("Constraints[2]", "Params.sketch16_diameter")
sketch16.setExpression("Constraints[3]", "Params.sketch16_diameter2")
pocket9 = body.newObject("PartDesign::Pocket", "Pocket008")
pocket9.Profile = sketch16
pocket9.setExpression("Length", "Params.pocket9_length")
pocket9.Reversed = True

# Sketch on XY plane
sketch17 = body.newObject("Sketcher::SketchObject", "Sketch016")
sketch17.AttachmentSupport = (doc.getObject("XY_Plane"), [""])
sketch17.MapMode = "FlatFace"
sketch17.AttachmentOffset = App.Placement(App.Vector(0, 0, 4), App.Rotation())
sketch17.addGeometry(Part.Circle(App.Vector(0, 0, 0), App.Vector(0, 0, 1), 1.5), False)
sketch17.addConstraint(Sketcher.Constraint("Coincident", 0, 3, -1, 1))
sketch17.addConstraint(Sketcher.Constraint("Diameter", 0, Q("3 mm")))
sketch17.setExpression("Constraints[1]", "Params.sketch17_diameter")
pocket10 = body.newObject("PartDesign::Pocket", "Pocket009")
pocket10.Profile = sketch17
pocket10.setExpression("Length", "Params.pocket10_length")
pocket10.Reversed = True

# Sketch on XY plane
sketch18 = body.newObject("Sketcher::SketchObject", "Sketch017")
sketch18.AttachmentSupport = (doc.getObject("XY_Plane"), [""])
sketch18.MapMode = "FlatFace"
sketch18.AttachmentOffset = App.Placement(App.Vector(0, 0, 16), App.Rotation())
sketch18.addGeometry(Part.Circle(App.Vector(-5, 0, 0), App.Vector(0, 0, 1), 1), False)
sketch18.addGeometry(Part.Circle(App.Vector(5, 0, 0), App.Vector(0, 0, 1), 1), False)
sketch18.addConstraint(Sketcher.Constraint("Equal", 0, 1))
sketch18.addConstraint(Sketcher.Constraint("Symmetric", 0, 3, 1, 3, -1, 1))
sketch18.addConstraint(Sketcher.Constraint("PointOnObject", 0, 3, -1))
sketch18.addConstraint(Sketcher.Constraint("Diameter", 0, Q("2 mm")))
sketch18.addConstraint(Sketcher.Constraint("DistanceX", 0, 3, -1, 1, Q("5 mm")))
sketch18.setExpression("Constraints[3]", "Params.sketch18_diameter")
pocket11 = body.newObject("PartDesign::Pocket", "Pocket010")
pocket11.Profile = sketch18
pocket11.setExpression("Length", "Params.pocket11_length")
pocket11.Reversed = True
doc.recompute()

chamfer = body.newObject("PartDesign::Chamfer", "Chamfer")
chamfer.Base = (pocket11, edges_at(pocket11, [(10, 0, 0)]))
chamfer.setExpression("Size", "Params.chamfer_size")

# Sketch on YZ plane
sketch19 = body.newObject("Sketcher::SketchObject", "Sketch018")
sketch19.AttachmentSupport = (doc.getObject("YZ_Plane"), [""])
sketch19.MapMode = "FlatFace"
sketch19.AttachmentOffset = App.Placement(App.Vector(0, 0, -23), App.Rotation())
sketch19.addGeometry(Part.Circle(App.Vector(50, -4, 0), App.Vector(0, 0, 1), 2), False)
sketch19.addGeometry(Part.Circle(App.Vector(50, 24, 0), App.Vector(0, 0, 1), 2), False)
sketch19.addConstraint(Sketcher.Constraint("Equal", 0, 1))
sketch19.addConstraint(Sketcher.Constraint("Vertical", 0, 3, 1, 3))
sketch19.addConstraint(Sketcher.Constraint("Diameter", 0, Q("4 mm")))
sketch19.addConstraint(Sketcher.Constraint("DistanceX", -1, 1, 0, 3, Q("50 mm")))
sketch19.addConstraint(Sketcher.Constraint("DistanceY", 0, 3, -1, 1, Q("4 mm")))
sketch19.addConstraint(Sketcher.Constraint("DistanceY", -1, 1, 1, 3, Q("24 mm")))
sketch19.setExpression("Constraints[2]", "Params.sketch19_diameter")
pad8 = body.newObject("PartDesign::Pad", "Pad007")
pad8.Profile = sketch19
pad8.setExpression("Length", "Params.pad8_length")
pad8.Reversed = True

# Sketch on YZ plane
sketch20 = body.newObject("Sketcher::SketchObject", "Sketch019")
sketch20.AttachmentSupport = (doc.getObject("YZ_Plane"), [""])
sketch20.MapMode = "FlatFace"
sketch20.AttachmentOffset = App.Placement(App.Vector(0, 0, 15), App.Rotation())
sketch20.addGeometry(Part.LineSegment(App.Vector(48, 15, 0), App.Vector(40, 15, 0)), False)
sketch20.addGeometry(Part.LineSegment(App.Vector(40, 15, 0), App.Vector(40, 5, 0)), False)
sketch20.addGeometry(Part.LineSegment(App.Vector(40, 5, 0), App.Vector(48, 5, 0)), False)
sketch20.addGeometry(Part.LineSegment(App.Vector(48, 5, 0), App.Vector(48, 15, 0)), False)
sketch20.addConstraint(Sketcher.Constraint("Coincident", 0, 2, 1, 1))
sketch20.addConstraint(Sketcher.Constraint("Coincident", 1, 2, 2, 1))
sketch20.addConstraint(Sketcher.Constraint("Coincident", 2, 2, 3, 1))
sketch20.addConstraint(Sketcher.Constraint("Coincident", 3, 2, 0, 1))
sketch20.addConstraint(Sketcher.Constraint("Horizontal", 0))
sketch20.addConstraint(Sketcher.Constraint("Vertical", 1))
sketch20.addConstraint(Sketcher.Constraint("Horizontal", 2))
sketch20.addConstraint(Sketcher.Constraint("Vertical", 3))
sketch20.addConstraint(Sketcher.Constraint("DistanceX", 0, 2, 0, 1, Q("8 mm")))
sketch20.addConstraint(Sketcher.Constraint("DistanceY", 1, 2, 1, 1, Q("10 mm")))
sketch20.addConstraint(Sketcher.Constraint("DistanceX", -1, 1, 0, 2, Q("40 mm")))
sketch20.addConstraint(Sketcher.Constraint("DistanceY", -1, 1, 0, 2, Q("15 mm")))
sketch20.setExpression("Constraints[8]", "Params.sketch20_width")
sketch20.setExpression("Constraints[9]", "Params.sketch20_height")
pocket12 = body.newObject("PartDesign::Pocket", "Pocket011")
pocket12.Profile = sketch20
pocket12.setExpression("Length", "Params.pocket12_length")

# Sketch on YZ plane
sketch21 = body.newObject("Sketcher::SketchObject", "Sketch020")
sketch21.AttachmentSupport = (doc.getObject("YZ_Plane"), [""])
sketch21.MapMode = "FlatFace"
sketch21.AttachmentOffset = App.Placement(App.Vector(0, 0, -15), App.Rotation())
sketch21.addGeometry(Part.LineSegment(App.Vector(60, -10, 0), App.Vector(43, -10, 0)), False)
sketch21.addGeometry(Part.LineSegment(App.Vector(43, -10, 0), App.Vector(43, 4, 0)), False)
sketch21.addGeometry(Part.LineSegment(App.Vector(43, 4, 0), App.Vector(50, 4, 0)), False)
sketch21.addGeometry(Part.LineSegment(App.Vector(50, 4, 0), App.Vector(50, 16, 0)), False)
sketch21.addGeometry(Part.LineSegment(App.Vector(50, 16, 0), App.Vector(43, 16, 0)), False)
sketch21.addGeometry(Part.LineSegment(App.Vector(43, 16, 0), App.Vector(43, 30, 0)), False)
sketch21.addGeometry(Part.LineSegment(App.Vector(43, 30, 0), App.Vector(60, 30, 0)), False)
sketch21.addGeometry(Part.LineSegment(App.Vector(60, 30, 0), App.Vector(60, -10, 0)), False)
sketch21.addConstraint(Sketcher.Constraint("Coincident", 0, 2, 1, 1))
sketch21.addConstraint(Sketcher.Constraint("Coincident", 1, 2, 2, 1))
sketch21.addConstraint(Sketcher.Constraint("Coincident", 2, 2, 3, 1))
sketch21.addConstraint(Sketcher.Constraint("Coincident", 3, 2, 4, 1))
sketch21.addConstraint(Sketcher.Constraint("Coincident", 4, 2, 5, 1))
sketch21.addConstraint(Sketcher.Constraint("Coincident", 5, 2, 6, 1))
sketch21.addConstraint(Sketcher.Constraint("Coincident", 6, 2, 7, 1))
sketch21.addConstraint(Sketcher.Constraint("Coincident", 7, 2, 0, 1))
sketch21.addConstraint(Sketcher.Constraint("Horizontal", 0))
sketch21.addConstraint(Sketcher.Constraint("Vertical", 1))
sketch21.addConstraint(Sketcher.Constraint("Horizontal", 2))
sketch21.addConstraint(Sketcher.Constraint("Vertical", 3))
sketch21.addConstraint(Sketcher.Constraint("Horizontal", 4))
sketch21.addConstraint(Sketcher.Constraint("Vertical", 5))
sketch21.addConstraint(Sketcher.Constraint("Horizontal", 6))
sketch21.addConstraint(Sketcher.Constraint("Vertical", 7))
sketch21.addConstraint(Sketcher.Constraint("Vertical", 1, 2, 4, 2))
sketch21.addConstraint(Sketcher.Constraint("Equal", 1, 5))
sketch21.addConstraint(Sketcher.Constraint("DistanceY", 1, 1, 1, 2, Q("14 mm")))
sketch21.addConstraint(Sketcher.Constraint("DistanceY", 3, 1, 3, 2, Q("12 mm")))
sketch21.addConstraint(Sketcher.Constraint("DistanceY", 0, 2, -1, 1, Q("10 mm")))
sketch21.addConstraint(Sketcher.Constraint("DistanceX", -1, 1, 6, 2, Q("60 mm")))
sketch21.addConstraint(Sketcher.Constraint("DistanceX", 0, 2, 0, 1, Q("16.7707 mm")))
sketch21.addConstraint(Sketcher.Constraint("DistanceX", 2, 1, 2, 2, Q("6.7493 mm")))
sketch21.setExpression("Constraints[18]", "Params.sketch21_height")
sketch21.setExpression("Constraints[19]", "Params.sketch21_height2")
pad9 = body.newObject("PartDesign::Pad", "Pad008")
pad9.Profile = sketch21
pad9.setExpression("Length", "Params.pad9_length")
pad9.Reversed = True

# Sketch on YZ plane
sketch22 = body.newObject("Sketcher::SketchObject", "Sketch021")
sketch22.AttachmentSupport = (doc.getObject("YZ_Plane"), [""])
sketch22.MapMode = "FlatFace"
sketch22.AttachmentOffset = App.Placement(App.Vector(0, 0, -31), App.Rotation())
sketch22.addGeometry(Part.Circle(App.Vector(50, -4, 0), App.Vector(0, 0, 1), 2), False)
sketch22.addGeometry(Part.Circle(App.Vector(50, 24, 0), App.Vector(0, 0, 1), 2), False)
sketch22.addConstraint(Sketcher.Constraint("Equal", 0, 1))
sketch22.addConstraint(Sketcher.Constraint("Vertical", 0, 3, 1, 3))
sketch22.addConstraint(Sketcher.Constraint("Diameter", 0, Q("4 mm")))
sketch22.addConstraint(Sketcher.Constraint("DistanceX", -1, 1, 0, 3, Q("50 mm")))
sketch22.addConstraint(Sketcher.Constraint("DistanceY", 0, 3, -1, 1, Q("4 mm")))
sketch22.addConstraint(Sketcher.Constraint("DistanceY", -1, 1, 1, 3, Q("24 mm")))
sketch22.setExpression("Constraints[2]", "Params.sketch22_diameter")
pocket13 = body.newObject("PartDesign::Pocket", "Pocket012")
pocket13.Profile = sketch22
pocket13.setExpression("Length", "Params.pocket13_length")
pocket13.Reversed = True

doc.recompute()
